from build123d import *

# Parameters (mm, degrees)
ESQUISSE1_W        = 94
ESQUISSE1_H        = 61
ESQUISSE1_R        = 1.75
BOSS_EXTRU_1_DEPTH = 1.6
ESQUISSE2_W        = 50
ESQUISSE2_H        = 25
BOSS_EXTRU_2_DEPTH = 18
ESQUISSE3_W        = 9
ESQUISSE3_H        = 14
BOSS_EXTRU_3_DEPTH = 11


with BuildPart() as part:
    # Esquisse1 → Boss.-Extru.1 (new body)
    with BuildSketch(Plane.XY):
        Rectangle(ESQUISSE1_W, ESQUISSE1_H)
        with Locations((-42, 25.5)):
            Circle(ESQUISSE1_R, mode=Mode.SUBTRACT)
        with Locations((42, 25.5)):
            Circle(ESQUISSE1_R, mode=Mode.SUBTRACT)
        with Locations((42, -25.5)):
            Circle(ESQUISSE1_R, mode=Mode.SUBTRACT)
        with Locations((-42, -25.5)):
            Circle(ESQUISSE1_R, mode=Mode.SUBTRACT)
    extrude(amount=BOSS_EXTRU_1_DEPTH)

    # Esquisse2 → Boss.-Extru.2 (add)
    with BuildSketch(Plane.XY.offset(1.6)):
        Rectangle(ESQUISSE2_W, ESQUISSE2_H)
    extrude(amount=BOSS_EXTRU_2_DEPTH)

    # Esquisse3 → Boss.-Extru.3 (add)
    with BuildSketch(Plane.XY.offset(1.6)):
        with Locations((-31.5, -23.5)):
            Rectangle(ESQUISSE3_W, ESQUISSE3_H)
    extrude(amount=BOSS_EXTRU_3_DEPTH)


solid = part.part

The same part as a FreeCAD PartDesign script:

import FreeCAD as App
import Part
import Sketcher
from FreeCAD import Vector

doc = App.newDocument("Part")
params = doc.addObject("Spreadsheet::Sheet", "Params")
for row, (alias, value) in enumerate([
    ("sketch1_diameter", "3.5 mm"),
    ("sketch1_width", "94 mm"),
    ("sketch1_height", "61 mm"),
    ("pad1_length", "1.6 mm"),
    ("sketch2_width", "50 mm"),
    ("sketch2_height", "25 mm"),
    ("pad2_length", "18 mm"),
    ("sketch3_width", "9 mm"),
    ("sketch3_height", "14 mm"),
    ("pad3_length", "11 mm"),
], start=1):
    params.set(f"A{row}", alias)
    params.set(f"B{row}", "=" + value)
    params.setAlias(f"B{row}", alias)

body = doc.addObject("PartDesign::Body", "Body")

sketch1 = body.newObject("Sketcher::SketchObject", "Sketch")
sketch1.AttachmentSupport = (doc.getObject("XY_Plane"), [""])
sketch1.MapMode = "FlatFace"
sketch1.addGeometry([
    Part.LineSegment(Vector(-47, 30.5, 0), Vector(-47, -30.5, 0)),
    Part.LineSegment(Vector(-47, -30.5, 0), Vector(47, -30.5, 0)),
    Part.LineSegment(Vector(47, -30.5, 0), Vector(47, 30.5, 0)),
    Part.LineSegment(Vector(47, 30.5, 0), Vector(-47, 30.5, 0)),
    Part.Circle(Vector(-42, -25.5, 0), Vector(0, 0, 1), 1.75),
    Part.Circle(Vector(42, -25.5, 0), Vector(0, 0, 1), 1.75),
    Part.Circle(Vector(-42, 25.5, 0), Vector(0, 0, 1), 1.75),
    Part.Circle(Vector(42, 25.5, 0), Vector(0, 0, 1), 1.75),
], False)
sketch1.addConstraint([
    Sketcher.Constraint("Coincident", 0, 2, 1, 1),
    Sketcher.Constraint("Coincident", 1, 2, 2, 1),
    Sketcher.Constraint("Coincident", 2, 2, 3, 1),
    Sketcher.Constraint("Coincident", 3, 2, 0, 1),
    Sketcher.Constraint("Vertical", 0),
    Sketcher.Constraint("Horizontal", 1),
    Sketcher.Constraint("Vertical", 2),
    Sketcher.Constraint("Horizontal", 3),
    Sketcher.Constraint("Equal", 4, 5),
    Sketcher.Constraint("Equal", 5, 6),
    Sketcher.Constraint("Equal", 6, 7),
    Sketcher.Constraint("Symmetric", 5, 3, 6, 3, -1, 1),
    Sketcher.Constraint("Symmetric", 4, 3, 7, 3, -1, 1),
    Sketcher.Constraint("Symmetric", 0, 2, 2, 2, -1, 1),
    Sketcher.Constraint("Symmetric", 4, 3, 5, 3, -2),
    Sketcher.Constraint("Diameter", 4, 3.5),
    Sketcher.Constraint("DistanceX", 1, 1, 1, 2, 94.0),
    Sketcher.Constraint("DistanceY", 0, 2, 0, 1, 61.0),
    Sketcher.Constraint("DistanceX", 4, 3, -1, 1, 42.0),
    Sketcher.Constraint("DistanceY", 4, 3, 6, 3, 51.0),
])
sketch1.setExpression("Constraints[15]", "Params.sketch1_diameter")
sketch1.setExpression("Constraints[16]", "Params.sketch1_width")
sketch1.setExpression("Constraints[17]", "Params.sketch1_height")
pad1 = body.newObject("PartDesign::Pad", "Pad")
pad1.Profile = sketch1
pad1.setExpression("Length", "Params.pad1_length")

sketch2 = body.newObject("Sketcher::SketchObject", "Sketch001")
sketch2.AttachmentSupport = (doc.getObject("XY_Plane"), [""])
sketch2.MapMode = "FlatFace"
sketch2.AttachmentOffset = App.Placement(Vector(0, 0, 1.6), App.Rotation())
sketch2.addGeometry([
    Part.LineSegment(Vector(-25, 12.5, 0), Vector(-25, -12.5, 0)),
    Part.LineSegment(Vector(-25, -12.5, 0), Vector(25, -12.5, 0)),
    Part.LineSegment(Vector(25, -12.5, 0), Vector(25, 12.5, 0)),
    Part.LineSegment(Vector(25, 12.5, 0), Vector(-25, 12.5, 0)),
], False)
sketch2.addConstraint([
    Sketcher.Constraint("Coincident", 0, 2, 1, 1),
    Sketcher.Constraint("Coincident", 1, 2, 2, 1),
    Sketcher.Constraint("Coincident", 2, 2, 3, 1),
    Sketcher.Constraint("Coincident", 3, 2, 0, 1),
    Sketcher.Constraint("Vertical", 0),
    Sketcher.Constraint("Horizontal", 1),
    Sketcher.Constraint("Vertical", 2),
    Sketcher.Constraint("Horizontal", 3),
    Sketcher.Constraint("Symmetric", 0, 2, 2, 2, -1, 1),
    Sketcher.Constraint("DistanceX", 1, 1, 1, 2, 50.0),
    Sketcher.Constraint("DistanceY", 0, 2, 0, 1, 25.0),
])
sketch2.setExpression("Constraints[9]", "Params.sketch2_width")
sketch2.setExpression("Constraints[10]", "Params.sketch2_height")
pad2 = body.newObject("PartDesign::Pad", "Pad001")
pad2.Profile = sketch2
pad2.setExpression("Length", "Params.pad2_length")

sketch3 = body.newObject("Sketcher::SketchObject", "Sketch002")
sketch3.AttachmentSupport = (doc.getObject("XY_Plane"), [""])
sketch3.MapMode = "FlatFace"
sketch3.AttachmentOffset = App.Placement(Vector(0, 0, 1.6), App.Rotation())
sketch3.addGeometry([
    Part.LineSegment(Vector(-36, -16.5, 0), Vector(-36, -30.5, 0)),
    Part.LineSegment(Vector(-36, -30.5, 0), Vector(-27, -30.5, 0)),
    Part.LineSegment(Vector(-27, -30.5, 0), Vector(-27, -16.5, 0)),
    Part.LineSegment(Vector(-27, -16.5, 0), Vector(-36, -16.5, 0)),
], False)
sketch3.addConstraint([
    Sketcher.Constraint("Coincident", 0, 2, 1, 1),
    Sketcher.Constraint("Coincident", 1, 2, 2, 1),
    Sketcher.Constraint("Coincident", 2, 2, 3, 1),
    Sketcher.Constraint("Coincident", 3, 2, 0, 1),
    Sketcher.Constraint("Vertical", 0),
    Sketcher.Constraint("Horizontal", 1),
    Sketcher.Constraint("Vertical", 2),
    Sketcher.Constraint("Horizontal", 3),
    Sketcher.Constraint("DistanceX", 1, 1, 1, 2, 9.0),
    Sketcher.Constraint("DistanceY", 0, 2, 0, 1, 14.0),
    Sketcher.Constraint("DistanceX", 0, 2, -1, 1, 36.0),
    Sketcher.Constraint("DistanceY", 0, 2, -1, 1, 30.5),
])
sketch3.setExpression("Constraints[8]", "Params.sketch3_width")
sketch3.setExpression("Constraints[9]", "Params.sketch3_height")
pad3 = body.newObject("PartDesign::Pad", "Pad002")
pad3.Profile = sketch3
pad3.setExpression("Length", "Params.pad3_length")

doc.recompute()
